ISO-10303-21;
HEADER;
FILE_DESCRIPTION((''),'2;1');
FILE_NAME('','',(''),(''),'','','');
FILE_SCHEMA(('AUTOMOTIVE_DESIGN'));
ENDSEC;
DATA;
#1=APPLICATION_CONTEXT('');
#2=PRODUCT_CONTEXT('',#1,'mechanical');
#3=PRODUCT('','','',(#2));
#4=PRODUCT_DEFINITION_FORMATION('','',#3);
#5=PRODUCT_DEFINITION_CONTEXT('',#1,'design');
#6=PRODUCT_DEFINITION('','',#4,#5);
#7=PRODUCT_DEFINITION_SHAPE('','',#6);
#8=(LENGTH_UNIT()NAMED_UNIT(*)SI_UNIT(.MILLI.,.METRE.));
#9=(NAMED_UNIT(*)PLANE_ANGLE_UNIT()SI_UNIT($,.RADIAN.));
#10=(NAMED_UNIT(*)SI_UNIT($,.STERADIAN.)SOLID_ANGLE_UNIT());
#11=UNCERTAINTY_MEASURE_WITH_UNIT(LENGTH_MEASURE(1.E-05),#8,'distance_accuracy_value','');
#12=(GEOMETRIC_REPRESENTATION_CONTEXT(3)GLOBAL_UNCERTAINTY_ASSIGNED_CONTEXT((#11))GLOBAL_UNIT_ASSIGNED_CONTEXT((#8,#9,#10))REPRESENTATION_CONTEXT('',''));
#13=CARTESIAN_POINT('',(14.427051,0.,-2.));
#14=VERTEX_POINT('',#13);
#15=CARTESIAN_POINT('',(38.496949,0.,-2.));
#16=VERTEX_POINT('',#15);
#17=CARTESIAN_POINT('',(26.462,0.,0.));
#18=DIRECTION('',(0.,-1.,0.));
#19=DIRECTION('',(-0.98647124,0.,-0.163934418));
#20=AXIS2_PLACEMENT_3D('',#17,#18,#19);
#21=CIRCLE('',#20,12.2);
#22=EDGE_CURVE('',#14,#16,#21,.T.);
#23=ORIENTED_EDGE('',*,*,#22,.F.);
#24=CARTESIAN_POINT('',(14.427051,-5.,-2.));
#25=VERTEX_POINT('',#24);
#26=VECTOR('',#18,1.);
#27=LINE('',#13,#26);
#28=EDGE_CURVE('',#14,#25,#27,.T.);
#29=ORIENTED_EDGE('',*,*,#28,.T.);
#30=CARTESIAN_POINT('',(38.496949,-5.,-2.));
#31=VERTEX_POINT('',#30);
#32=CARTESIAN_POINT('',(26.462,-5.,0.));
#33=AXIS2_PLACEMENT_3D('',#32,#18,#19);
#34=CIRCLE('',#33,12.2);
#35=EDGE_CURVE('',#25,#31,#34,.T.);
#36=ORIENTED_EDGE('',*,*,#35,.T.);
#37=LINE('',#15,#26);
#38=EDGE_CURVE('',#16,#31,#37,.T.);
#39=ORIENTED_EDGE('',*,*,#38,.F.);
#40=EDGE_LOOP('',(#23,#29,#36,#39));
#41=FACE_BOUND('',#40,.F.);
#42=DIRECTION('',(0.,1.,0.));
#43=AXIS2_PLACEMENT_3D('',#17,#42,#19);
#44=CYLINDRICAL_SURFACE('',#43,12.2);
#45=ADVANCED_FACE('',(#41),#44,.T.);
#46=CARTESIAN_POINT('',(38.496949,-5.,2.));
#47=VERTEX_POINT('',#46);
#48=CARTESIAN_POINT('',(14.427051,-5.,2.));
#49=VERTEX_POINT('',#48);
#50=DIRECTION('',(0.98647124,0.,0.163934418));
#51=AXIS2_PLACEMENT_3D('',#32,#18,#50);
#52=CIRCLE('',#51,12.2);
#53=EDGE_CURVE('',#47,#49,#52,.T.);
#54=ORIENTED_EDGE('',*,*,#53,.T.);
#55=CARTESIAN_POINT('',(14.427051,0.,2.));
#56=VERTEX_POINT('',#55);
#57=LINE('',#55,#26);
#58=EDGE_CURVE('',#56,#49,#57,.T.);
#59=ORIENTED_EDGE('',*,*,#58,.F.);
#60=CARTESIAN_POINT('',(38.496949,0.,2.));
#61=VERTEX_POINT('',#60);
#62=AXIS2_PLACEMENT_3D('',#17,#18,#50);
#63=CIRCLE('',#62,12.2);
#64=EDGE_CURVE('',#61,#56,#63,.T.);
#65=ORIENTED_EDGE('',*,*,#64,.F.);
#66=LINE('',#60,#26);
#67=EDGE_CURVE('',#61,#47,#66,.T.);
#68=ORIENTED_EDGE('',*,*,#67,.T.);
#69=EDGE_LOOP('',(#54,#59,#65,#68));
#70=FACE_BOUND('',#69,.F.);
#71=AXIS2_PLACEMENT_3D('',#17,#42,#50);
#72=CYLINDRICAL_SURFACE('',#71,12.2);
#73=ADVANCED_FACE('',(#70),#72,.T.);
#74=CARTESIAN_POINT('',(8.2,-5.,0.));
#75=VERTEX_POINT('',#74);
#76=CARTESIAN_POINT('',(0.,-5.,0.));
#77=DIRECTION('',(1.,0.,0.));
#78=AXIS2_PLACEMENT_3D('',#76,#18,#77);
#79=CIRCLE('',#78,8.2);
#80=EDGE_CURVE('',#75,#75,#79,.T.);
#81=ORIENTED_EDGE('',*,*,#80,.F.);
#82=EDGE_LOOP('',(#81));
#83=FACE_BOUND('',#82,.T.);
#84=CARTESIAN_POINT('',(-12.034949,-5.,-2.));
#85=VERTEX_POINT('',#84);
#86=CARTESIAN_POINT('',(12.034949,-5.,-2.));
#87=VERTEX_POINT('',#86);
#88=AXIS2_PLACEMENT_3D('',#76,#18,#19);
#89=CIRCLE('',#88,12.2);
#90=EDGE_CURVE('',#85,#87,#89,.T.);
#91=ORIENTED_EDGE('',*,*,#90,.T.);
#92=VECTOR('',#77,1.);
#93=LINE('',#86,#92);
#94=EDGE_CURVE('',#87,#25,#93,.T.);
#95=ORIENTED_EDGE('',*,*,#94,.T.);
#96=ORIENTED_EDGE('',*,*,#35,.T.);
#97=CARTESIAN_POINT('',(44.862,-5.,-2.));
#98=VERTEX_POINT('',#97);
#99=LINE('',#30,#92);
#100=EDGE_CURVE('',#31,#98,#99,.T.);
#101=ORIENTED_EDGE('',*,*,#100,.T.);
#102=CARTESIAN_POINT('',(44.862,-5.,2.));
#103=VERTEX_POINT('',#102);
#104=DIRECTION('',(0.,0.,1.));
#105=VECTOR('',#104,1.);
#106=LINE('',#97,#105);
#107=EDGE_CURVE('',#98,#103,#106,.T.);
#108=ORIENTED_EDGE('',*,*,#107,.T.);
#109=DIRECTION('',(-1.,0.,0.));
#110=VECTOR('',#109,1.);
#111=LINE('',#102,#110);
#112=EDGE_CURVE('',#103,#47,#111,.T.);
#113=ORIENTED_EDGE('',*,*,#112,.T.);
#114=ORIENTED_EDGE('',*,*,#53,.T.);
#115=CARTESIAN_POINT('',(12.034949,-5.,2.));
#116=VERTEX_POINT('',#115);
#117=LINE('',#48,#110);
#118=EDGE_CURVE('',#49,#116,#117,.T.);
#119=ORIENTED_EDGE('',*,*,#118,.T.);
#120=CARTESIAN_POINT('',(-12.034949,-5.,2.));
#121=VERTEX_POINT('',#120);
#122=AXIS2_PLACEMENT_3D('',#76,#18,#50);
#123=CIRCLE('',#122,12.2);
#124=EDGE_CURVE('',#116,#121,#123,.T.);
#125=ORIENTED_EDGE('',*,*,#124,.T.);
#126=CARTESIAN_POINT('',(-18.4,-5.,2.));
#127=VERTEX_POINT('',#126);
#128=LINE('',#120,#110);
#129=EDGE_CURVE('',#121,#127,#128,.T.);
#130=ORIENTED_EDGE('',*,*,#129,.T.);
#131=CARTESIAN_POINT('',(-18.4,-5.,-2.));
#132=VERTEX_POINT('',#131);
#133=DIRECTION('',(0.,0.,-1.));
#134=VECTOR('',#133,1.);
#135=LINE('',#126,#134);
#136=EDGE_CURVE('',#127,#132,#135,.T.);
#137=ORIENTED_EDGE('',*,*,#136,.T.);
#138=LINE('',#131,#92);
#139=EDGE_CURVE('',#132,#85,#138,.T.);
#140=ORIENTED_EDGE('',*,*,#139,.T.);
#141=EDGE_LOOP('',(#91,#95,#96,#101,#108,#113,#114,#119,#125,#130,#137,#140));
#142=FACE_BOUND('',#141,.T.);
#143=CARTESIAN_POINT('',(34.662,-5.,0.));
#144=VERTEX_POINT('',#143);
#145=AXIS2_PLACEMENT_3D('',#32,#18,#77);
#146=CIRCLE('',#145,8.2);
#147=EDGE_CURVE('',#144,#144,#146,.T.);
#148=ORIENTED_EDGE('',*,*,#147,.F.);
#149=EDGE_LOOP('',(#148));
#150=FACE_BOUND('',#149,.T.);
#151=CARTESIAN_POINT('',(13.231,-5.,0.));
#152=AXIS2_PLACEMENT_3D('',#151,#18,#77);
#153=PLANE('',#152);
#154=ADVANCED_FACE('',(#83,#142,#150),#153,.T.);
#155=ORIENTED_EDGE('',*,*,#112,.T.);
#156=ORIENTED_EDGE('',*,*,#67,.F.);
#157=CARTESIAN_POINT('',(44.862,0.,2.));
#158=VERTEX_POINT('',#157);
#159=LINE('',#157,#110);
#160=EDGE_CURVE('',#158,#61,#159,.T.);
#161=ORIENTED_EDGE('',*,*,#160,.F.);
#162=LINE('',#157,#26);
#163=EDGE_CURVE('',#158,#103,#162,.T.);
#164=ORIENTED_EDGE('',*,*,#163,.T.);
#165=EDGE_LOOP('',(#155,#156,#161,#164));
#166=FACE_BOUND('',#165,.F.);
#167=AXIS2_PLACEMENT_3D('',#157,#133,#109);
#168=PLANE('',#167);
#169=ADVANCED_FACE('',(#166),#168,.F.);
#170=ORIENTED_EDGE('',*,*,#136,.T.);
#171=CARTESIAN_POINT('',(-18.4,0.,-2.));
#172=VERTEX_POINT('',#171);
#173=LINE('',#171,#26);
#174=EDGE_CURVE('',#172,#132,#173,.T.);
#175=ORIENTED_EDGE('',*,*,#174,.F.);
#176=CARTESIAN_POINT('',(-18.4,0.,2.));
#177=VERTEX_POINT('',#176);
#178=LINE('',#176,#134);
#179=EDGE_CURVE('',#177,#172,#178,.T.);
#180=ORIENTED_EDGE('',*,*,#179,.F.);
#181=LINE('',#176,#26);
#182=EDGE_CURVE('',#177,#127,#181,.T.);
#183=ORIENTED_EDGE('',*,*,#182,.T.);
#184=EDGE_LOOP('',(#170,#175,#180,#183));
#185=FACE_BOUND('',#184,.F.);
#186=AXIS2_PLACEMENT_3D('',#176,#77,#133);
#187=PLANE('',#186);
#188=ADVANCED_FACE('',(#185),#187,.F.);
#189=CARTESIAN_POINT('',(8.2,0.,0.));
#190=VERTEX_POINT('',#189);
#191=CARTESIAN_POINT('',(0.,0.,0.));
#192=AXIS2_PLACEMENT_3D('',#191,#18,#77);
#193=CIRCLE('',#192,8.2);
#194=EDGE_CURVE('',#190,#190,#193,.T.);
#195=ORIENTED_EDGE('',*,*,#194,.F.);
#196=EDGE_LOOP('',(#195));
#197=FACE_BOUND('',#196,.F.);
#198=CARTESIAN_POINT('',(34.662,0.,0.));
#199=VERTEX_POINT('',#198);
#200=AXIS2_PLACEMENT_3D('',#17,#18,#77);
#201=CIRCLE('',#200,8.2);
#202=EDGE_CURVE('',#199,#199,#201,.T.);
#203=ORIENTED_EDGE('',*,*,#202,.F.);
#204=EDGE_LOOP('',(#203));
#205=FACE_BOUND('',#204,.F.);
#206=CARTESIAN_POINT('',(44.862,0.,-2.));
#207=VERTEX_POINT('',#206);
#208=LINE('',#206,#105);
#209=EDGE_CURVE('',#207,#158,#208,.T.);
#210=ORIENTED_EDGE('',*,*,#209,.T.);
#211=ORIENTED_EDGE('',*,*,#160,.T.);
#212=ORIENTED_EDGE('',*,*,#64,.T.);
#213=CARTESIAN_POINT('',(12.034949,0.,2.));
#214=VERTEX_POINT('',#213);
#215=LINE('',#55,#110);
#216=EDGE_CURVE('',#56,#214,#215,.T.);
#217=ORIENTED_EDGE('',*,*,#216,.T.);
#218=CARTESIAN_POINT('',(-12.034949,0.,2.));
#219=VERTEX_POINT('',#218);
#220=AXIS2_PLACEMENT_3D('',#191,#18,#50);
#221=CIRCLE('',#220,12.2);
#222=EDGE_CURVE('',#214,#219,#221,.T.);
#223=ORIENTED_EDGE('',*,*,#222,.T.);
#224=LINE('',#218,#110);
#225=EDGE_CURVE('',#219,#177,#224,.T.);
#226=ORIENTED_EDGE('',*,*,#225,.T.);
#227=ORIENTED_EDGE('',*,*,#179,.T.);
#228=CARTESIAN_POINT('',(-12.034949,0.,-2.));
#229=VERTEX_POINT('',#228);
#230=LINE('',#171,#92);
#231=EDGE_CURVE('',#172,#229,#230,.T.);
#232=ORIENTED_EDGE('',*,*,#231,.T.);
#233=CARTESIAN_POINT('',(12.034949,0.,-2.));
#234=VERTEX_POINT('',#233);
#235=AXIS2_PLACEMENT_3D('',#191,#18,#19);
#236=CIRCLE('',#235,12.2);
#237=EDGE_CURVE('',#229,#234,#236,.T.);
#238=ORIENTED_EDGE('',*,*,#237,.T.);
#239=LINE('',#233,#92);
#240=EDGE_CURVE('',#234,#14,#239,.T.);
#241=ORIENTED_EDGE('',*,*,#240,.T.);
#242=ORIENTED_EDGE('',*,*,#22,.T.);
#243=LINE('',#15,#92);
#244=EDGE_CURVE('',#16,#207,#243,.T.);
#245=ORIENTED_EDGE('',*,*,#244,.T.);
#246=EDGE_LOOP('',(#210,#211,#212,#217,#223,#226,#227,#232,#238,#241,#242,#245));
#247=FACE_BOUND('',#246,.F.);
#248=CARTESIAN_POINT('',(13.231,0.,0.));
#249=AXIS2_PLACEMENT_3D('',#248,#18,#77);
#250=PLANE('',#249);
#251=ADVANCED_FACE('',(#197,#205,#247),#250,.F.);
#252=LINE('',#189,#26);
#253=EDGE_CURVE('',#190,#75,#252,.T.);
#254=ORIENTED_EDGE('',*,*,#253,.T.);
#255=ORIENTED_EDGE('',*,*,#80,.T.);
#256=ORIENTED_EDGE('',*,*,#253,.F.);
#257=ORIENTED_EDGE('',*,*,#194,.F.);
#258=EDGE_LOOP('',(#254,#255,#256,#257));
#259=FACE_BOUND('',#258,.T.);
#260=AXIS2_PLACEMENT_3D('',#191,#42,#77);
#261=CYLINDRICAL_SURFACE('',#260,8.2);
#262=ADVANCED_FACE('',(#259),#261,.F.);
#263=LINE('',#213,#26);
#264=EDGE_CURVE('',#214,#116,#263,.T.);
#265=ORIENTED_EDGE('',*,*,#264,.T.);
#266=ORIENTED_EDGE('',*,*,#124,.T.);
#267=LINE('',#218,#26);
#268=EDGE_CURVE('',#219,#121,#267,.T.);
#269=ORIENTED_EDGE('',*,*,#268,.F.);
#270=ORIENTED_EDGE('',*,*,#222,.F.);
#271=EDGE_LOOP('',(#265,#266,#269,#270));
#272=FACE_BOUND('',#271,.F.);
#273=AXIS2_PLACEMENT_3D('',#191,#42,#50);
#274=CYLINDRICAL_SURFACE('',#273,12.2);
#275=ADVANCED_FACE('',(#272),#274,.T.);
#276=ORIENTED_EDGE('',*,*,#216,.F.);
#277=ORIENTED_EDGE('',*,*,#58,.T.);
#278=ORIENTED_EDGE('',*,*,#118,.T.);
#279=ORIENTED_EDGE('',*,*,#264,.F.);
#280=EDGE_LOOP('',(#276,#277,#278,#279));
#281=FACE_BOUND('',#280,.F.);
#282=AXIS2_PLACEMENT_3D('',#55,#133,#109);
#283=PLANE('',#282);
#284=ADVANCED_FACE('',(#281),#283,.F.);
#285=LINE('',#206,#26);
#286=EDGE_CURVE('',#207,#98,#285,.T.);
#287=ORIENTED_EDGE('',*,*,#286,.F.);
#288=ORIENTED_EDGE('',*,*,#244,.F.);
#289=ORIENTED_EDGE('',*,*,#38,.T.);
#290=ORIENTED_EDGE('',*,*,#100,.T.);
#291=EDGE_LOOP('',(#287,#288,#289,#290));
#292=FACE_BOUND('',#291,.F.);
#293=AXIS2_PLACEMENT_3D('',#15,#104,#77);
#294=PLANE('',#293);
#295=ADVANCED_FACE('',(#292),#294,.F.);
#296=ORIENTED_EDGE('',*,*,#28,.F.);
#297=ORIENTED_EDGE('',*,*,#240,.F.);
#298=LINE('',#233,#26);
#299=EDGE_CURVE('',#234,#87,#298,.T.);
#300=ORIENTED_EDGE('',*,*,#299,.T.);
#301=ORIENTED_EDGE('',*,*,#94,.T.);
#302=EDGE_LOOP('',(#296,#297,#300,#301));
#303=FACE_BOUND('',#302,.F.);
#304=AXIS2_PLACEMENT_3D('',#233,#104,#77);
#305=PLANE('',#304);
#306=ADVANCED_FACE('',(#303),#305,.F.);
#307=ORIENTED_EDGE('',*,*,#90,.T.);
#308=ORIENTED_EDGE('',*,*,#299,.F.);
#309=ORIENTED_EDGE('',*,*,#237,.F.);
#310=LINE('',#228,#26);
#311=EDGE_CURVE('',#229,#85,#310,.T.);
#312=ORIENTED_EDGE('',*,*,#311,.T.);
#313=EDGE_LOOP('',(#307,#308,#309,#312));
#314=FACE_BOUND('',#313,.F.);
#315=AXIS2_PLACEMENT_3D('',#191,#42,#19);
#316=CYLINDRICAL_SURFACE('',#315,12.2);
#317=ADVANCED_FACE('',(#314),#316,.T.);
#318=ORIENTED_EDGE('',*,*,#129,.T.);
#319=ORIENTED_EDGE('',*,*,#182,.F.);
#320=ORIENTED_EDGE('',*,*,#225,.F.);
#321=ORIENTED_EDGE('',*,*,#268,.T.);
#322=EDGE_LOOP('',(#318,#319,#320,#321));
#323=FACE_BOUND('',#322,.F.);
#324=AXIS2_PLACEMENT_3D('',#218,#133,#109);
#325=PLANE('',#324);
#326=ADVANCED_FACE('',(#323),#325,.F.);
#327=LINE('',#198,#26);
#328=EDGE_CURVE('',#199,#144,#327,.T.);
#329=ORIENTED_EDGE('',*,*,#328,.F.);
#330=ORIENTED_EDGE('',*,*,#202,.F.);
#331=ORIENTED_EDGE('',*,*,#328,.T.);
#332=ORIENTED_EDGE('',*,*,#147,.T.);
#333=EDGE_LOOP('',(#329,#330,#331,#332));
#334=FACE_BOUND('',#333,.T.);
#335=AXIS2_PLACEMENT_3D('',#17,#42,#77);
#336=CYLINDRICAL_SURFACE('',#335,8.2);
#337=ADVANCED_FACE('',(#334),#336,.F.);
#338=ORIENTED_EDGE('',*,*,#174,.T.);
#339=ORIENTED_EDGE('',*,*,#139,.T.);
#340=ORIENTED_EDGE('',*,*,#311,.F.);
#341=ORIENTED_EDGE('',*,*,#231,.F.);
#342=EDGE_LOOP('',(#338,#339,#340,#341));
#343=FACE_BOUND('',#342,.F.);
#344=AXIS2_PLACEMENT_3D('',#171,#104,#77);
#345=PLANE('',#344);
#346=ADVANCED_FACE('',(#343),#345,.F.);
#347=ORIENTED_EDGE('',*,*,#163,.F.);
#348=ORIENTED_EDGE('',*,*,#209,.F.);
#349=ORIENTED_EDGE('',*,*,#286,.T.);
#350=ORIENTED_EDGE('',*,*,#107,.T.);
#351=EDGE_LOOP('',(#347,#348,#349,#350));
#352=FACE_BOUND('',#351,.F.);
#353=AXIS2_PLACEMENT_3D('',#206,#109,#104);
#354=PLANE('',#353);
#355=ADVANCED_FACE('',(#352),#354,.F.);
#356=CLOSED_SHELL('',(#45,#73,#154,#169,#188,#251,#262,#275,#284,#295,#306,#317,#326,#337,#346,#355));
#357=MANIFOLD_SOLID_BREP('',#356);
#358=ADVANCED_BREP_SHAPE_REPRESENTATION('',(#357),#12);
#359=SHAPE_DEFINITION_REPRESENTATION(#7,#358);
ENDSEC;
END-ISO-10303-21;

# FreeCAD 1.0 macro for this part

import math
import FreeCAD as App
import Part
import Sketcher

V = App.Vector

doc = App.newDocument("Part")
body = doc.addObject("PartDesign::Body", "Body")

# Sketch on XZ plane
sketch1 = body.newObject("Sketcher::SketchObject", "Sketch")
sketch1.AttachmentSupport = (doc.getObject("XZ_Plane"), [""])
sketch1.MapMode = "FlatFace"
sketch1.addGeometry([
    Part.LineSegment(V(-18.4, -2, 0), V(-12, -2, 0)),  # 0
    Part.ArcOfCircle(Part.Circle(V(0, 0, 0), V(0, 0, 1), 12.2), math.radians(-171), math.radians(-9)),  # 1
    Part.LineSegment(V(12, -2, 0), V(14.4, -2, 0)),  # 2
    Part.ArcOfCircle(Part.Circle(V(26.5, 0, 0), V(0, 0, 1), 12.2), math.radians(-171), math.radians(-9)),  # 3
    Part.LineSegment(V(38.5, -2, 0), V(44.9, -2, 0)),  # 4
    Part.LineSegment(V(44.9, -2, 0), V(44.9, 2, 0)),  # 5
    Part.LineSegment(V(44.9, 2, 0), V(38.5, 2, 0)),  # 6
    Part.ArcOfCircle(Part.Circle(V(26.5, 0, 0), V(0, 0, 1), 12.2), math.radians(9), math.radians(171)),  # 7
    Part.LineSegment(V(14.4, 2, 0), V(12, 2, 0)),  # 8
    Part.ArcOfCircle(Part.Circle(V(0, 0, 0), V(0, 0, 1), 12.2), math.radians(9), math.radians(171)),  # 9
    Part.LineSegment(V(-12, 2, 0), V(-18.4, 2, 0)),  # 10
    Part.LineSegment(V(-18.4, 2, 0), V(-18.4, -2, 0)),  # 11
    Part.Circle(V(0, 0, 0), V(0, 0, 1), 8.2),  # 12
    Part.Circle(V(26.5, 0, 0), V(0, 0, 1), 8.2),  # 13
], False)
sketch1.addConstraint([
    Sketcher.Constraint("Coincident", 0, 2, 1, 1),
    Sketcher.Constraint("Coincident", 1, 2, 2, 1),
    Sketcher.Constraint("Coincident", 2, 2, 3, 1),
    Sketcher.Constraint("Coincident", 3, 2, 4, 1),
    Sketcher.Constraint("Coincident", 4, 2, 5, 1),
    Sketcher.Constraint("Coincident", 5, 2, 6, 1),
    Sketcher.Constraint("Coincident", 6, 2, 7, 1),
    Sketcher.Constraint("Coincident", 7, 2, 8, 1),
    Sketcher.Constraint("Coincident", 8, 2, 9, 1),
    Sketcher.Constraint("Coincident", 9, 2, 10, 1),
    Sketcher.Constraint("Coincident", 10, 2, 11, 1),
    Sketcher.Constraint("Coincident", 11, 2, 0, 1),
    Sketcher.Constraint("Horizontal", 0),
    Sketcher.Constraint("Horizontal", 2),
    Sketcher.Constraint("Horizontal", 4),
    Sketcher.Constraint("Vertical", 5),
    Sketcher.Constraint("Horizontal", 6),
    Sketcher.Constraint("Horizontal", 8),
    Sketcher.Constraint("Horizontal", 10),
    Sketcher.Constraint("Vertical", 11),
    Sketcher.Constraint("Coincident", 1, 3, -1, 1),
    Sketcher.Constraint("Coincident", 9, 3, -1, 1),
    Sketcher.Constraint("Coincident", 12, 3, -1, 1),
    Sketcher.Constraint("Coincident", 7, 3, 3, 3),
    Sketcher.Constraint("Coincident", 13, 3, 3, 3),
    Sketcher.Constraint("Equal", 1, 3),
    Sketcher.Constraint("Equal", 3, 7),
    Sketcher.Constraint("Equal", 7, 9),
    Sketcher.Constraint("Equal", 12, 13),
    Sketcher.Constraint("Symmetric", 3, 2, 6, 2, -1),
    Sketcher.Constraint("Horizontal", 0, 2, 1, 2),
    Sketcher.Constraint("Horizontal", 2, 2, 3, 2),
    Sketcher.Constraint("Horizontal", 6, 2, 7, 2),
    Sketcher.Constraint("Horizontal", 8, 2, 9, 2),
    Sketcher.Constraint("Equal", 0, 4),
    Sketcher.Constraint("Diameter", 12, 16.4),
    Sketcher.Constraint("Radius", 1, 12.2),
    Sketcher.Constraint("DistanceY", 5, 1, 5, 2, 4.0),
    Sketcher.Constraint("DistanceX", 10, 2, -1, 1, 18.4),
    Sketcher.Constraint("DistanceX", -1, 1, 3, 3, 26.462),
])
pad1 = body.newObject("PartDesign::Pad", "Pad")
pad1.Profile = sketch1
pad1.Length = 5

doc.recompute()
